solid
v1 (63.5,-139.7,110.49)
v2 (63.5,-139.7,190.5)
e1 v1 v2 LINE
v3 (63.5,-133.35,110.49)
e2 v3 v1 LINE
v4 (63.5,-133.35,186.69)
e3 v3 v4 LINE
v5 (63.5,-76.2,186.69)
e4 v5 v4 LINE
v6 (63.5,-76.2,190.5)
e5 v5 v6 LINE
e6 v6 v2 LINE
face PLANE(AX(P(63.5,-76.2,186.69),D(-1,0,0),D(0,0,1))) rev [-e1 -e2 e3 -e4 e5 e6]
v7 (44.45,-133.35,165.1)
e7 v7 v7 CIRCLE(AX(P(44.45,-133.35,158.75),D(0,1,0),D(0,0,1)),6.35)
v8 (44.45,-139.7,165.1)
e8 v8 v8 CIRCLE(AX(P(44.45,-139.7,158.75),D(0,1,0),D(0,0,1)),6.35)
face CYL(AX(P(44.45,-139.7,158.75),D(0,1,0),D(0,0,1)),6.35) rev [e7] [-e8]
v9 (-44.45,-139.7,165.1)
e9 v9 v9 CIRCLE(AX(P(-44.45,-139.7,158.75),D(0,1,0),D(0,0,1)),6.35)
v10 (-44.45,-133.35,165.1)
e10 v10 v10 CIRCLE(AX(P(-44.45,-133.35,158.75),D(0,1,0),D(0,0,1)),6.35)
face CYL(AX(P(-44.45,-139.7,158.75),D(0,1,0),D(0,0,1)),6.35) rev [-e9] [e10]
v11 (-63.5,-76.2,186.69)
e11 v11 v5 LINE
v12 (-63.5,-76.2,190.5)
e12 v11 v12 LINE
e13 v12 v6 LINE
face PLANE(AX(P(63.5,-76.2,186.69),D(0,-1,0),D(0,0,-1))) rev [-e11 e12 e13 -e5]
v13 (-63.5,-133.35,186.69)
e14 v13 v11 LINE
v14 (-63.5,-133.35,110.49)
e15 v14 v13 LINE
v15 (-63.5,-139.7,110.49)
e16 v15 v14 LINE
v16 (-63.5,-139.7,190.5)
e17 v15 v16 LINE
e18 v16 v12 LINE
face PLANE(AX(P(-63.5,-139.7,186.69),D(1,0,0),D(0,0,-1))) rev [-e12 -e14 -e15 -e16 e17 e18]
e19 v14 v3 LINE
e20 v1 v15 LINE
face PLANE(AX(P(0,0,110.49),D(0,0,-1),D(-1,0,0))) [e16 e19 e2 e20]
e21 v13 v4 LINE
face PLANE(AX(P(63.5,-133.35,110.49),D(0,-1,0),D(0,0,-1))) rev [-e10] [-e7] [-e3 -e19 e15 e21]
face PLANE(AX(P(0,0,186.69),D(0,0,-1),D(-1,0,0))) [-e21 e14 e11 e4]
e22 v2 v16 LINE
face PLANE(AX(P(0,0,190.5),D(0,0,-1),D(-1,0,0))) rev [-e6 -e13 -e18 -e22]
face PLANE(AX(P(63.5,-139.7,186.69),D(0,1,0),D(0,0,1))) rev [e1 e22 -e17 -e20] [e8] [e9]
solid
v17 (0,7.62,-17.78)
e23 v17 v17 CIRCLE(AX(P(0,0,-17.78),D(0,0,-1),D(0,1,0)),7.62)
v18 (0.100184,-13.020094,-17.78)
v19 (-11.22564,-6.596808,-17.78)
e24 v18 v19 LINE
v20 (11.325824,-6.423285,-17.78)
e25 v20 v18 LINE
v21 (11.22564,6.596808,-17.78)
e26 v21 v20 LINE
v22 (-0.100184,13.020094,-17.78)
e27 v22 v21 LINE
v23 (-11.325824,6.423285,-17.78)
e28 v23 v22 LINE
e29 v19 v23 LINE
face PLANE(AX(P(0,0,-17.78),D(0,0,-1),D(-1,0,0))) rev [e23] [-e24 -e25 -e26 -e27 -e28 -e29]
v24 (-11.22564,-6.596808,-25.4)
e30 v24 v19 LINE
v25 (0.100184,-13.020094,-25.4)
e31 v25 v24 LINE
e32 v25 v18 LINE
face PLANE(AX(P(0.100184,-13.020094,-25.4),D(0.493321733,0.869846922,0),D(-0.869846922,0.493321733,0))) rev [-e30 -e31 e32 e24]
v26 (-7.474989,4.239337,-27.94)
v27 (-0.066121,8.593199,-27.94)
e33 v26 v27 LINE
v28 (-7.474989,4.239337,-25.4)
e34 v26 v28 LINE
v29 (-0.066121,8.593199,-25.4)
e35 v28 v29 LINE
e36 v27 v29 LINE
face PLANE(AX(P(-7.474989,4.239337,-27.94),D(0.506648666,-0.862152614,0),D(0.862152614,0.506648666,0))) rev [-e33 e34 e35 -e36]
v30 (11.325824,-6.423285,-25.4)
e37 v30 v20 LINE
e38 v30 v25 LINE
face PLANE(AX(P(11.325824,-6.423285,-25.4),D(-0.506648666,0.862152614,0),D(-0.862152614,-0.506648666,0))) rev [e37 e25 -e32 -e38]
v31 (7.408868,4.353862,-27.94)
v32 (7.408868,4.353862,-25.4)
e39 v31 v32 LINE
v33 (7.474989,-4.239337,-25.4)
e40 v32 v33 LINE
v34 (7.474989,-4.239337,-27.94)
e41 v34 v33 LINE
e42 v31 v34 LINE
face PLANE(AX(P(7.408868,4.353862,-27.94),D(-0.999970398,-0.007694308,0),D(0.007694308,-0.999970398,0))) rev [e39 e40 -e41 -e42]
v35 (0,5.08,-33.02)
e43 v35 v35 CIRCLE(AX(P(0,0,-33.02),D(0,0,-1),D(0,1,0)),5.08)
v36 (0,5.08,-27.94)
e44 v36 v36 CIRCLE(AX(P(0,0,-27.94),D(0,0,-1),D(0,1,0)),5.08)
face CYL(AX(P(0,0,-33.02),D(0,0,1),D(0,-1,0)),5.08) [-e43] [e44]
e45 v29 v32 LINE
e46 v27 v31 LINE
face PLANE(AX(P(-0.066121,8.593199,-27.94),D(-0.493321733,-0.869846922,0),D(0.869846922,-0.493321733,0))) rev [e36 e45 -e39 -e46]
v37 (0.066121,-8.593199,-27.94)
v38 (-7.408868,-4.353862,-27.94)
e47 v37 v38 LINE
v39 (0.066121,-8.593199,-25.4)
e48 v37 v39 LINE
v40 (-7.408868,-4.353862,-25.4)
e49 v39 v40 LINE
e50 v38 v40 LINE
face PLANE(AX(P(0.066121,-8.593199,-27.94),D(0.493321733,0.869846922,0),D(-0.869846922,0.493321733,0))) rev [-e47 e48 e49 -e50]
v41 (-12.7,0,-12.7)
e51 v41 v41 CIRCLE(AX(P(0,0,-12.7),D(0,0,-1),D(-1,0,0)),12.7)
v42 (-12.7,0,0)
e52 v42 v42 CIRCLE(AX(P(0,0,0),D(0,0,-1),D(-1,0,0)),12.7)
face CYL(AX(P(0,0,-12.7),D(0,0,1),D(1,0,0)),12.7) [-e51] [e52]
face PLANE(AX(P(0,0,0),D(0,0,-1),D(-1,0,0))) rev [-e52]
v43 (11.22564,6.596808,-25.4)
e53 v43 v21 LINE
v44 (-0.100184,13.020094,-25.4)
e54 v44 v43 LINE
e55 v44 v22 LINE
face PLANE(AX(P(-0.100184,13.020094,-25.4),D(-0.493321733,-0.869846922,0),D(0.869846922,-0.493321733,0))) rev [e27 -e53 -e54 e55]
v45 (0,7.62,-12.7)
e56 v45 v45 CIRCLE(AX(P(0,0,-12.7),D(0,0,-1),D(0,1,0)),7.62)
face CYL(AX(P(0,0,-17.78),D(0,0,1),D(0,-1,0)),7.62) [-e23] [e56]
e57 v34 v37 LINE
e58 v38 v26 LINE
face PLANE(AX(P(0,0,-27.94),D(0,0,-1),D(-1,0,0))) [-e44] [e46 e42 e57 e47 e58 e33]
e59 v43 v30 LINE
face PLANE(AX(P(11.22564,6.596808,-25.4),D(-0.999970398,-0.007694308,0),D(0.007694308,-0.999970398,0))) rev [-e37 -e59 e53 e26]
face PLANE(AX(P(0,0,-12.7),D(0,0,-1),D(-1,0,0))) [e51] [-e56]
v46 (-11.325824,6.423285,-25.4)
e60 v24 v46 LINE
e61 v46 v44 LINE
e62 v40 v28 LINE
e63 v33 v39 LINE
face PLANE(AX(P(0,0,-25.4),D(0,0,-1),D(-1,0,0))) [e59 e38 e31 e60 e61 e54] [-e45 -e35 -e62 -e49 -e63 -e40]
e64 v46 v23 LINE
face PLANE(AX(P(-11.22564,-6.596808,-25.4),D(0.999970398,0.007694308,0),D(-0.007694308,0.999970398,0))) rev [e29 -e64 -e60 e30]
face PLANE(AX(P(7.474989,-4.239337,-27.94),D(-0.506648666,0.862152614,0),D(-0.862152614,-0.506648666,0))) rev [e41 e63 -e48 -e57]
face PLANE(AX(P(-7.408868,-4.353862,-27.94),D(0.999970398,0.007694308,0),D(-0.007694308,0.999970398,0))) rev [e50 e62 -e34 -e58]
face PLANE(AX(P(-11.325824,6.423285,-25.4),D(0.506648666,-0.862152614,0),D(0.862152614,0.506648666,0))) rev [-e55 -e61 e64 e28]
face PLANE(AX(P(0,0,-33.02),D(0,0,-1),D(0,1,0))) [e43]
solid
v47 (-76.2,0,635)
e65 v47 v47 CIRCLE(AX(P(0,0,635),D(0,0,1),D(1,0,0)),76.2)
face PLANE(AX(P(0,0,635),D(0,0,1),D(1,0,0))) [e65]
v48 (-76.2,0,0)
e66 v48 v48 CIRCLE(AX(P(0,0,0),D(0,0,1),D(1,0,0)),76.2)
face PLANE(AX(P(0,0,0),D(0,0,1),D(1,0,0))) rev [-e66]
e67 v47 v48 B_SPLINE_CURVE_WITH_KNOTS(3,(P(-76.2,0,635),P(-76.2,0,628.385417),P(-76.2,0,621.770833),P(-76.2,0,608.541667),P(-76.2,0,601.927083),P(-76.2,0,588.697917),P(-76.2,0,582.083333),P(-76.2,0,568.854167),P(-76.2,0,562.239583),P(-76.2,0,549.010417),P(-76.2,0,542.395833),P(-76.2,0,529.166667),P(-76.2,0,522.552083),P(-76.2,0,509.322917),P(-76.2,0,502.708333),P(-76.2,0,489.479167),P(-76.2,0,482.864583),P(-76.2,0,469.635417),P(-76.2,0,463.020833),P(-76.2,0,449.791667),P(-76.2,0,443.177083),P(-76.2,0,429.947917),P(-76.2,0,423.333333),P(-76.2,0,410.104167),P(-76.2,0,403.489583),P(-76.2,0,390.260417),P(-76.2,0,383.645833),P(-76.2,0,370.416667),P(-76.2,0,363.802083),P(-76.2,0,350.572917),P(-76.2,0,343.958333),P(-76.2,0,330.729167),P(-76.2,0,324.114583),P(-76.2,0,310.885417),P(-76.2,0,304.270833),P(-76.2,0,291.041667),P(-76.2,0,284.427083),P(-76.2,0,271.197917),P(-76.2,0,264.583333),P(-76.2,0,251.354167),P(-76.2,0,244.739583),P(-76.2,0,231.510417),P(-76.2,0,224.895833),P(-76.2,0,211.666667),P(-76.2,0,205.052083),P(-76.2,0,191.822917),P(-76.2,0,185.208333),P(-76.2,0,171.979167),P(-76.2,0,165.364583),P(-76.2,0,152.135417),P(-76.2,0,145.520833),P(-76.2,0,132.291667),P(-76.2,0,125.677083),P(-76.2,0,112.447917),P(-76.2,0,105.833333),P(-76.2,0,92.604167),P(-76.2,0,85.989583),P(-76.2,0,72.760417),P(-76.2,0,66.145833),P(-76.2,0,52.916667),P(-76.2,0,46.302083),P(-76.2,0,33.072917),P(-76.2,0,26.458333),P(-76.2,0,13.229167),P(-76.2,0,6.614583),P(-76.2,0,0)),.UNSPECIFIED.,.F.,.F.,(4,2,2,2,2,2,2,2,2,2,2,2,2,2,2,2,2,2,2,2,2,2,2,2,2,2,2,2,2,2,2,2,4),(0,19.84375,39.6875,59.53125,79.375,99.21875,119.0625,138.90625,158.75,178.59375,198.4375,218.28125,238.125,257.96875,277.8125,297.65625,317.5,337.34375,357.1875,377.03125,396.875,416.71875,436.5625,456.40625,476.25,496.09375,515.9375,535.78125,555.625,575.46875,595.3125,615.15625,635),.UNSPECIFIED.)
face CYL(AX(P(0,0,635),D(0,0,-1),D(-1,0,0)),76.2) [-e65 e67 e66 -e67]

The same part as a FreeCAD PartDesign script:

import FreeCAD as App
import Part
import Sketcher

V = App.Vector
Q = App.Units.Quantity

doc = App.newDocument("Part")
body = doc.addObject("PartDesign::Body", "Body")

# Sketch on XY plane
sketch1 = body.newObject("Sketcher::SketchObject", "Sketch")
sketch1.AttachmentSupport = (doc.getObject("XY_Plane"), [""])
sketch1.MapMode = "FlatFace"
sketch1.addGeometry(Part.Circle(V(0, 0, 0), V(0, 0, 1), 76), False)
sketch1.addConstraint([
    Sketcher.Constraint("Coincident", 0, 3, -1, 1),
    Sketcher.Constraint("Diameter", 0, Q("6 in")),
])
pad1 = body.newObject("PartDesign::Pad", "Pad")
pad1.Profile = sketch1
pad1.Length = Q("25 in")
body2 = doc.addObject("PartDesign::Body", "Body001")

# Sketch on XY plane
sketch2 = body2.newObject("Sketcher::SketchObject", "Sketch001")
sketch2.AttachmentSupport = (doc.getObject("XY_Plane001"), [""])
sketch2.MapMode = "FlatFace"
sketch2.addGeometry(Part.Circle(V(0, 0, 0), V(0, 0, 1), 13), False)
sketch2.addConstraint([
    Sketcher.Constraint("Coincident", 0, 3, -1, 1),
    Sketcher.Constraint("Diameter", 0, Q("1 in")),
])
pad2 = body2.newObject("PartDesign::Pad", "Pad001")
pad2.Profile = sketch2
pad2.Length = Q("0.5 in")
pad2.Reversed = True

# Sketch on XY plane
sketch3 = body2.newObject("Sketcher::SketchObject", "Sketch002")
sketch3.AttachmentSupport = (doc.getObject("XY_Plane001"), [""])
sketch3.MapMode = "FlatFace"
sketch3.AttachmentOffset = App.Placement(V(0, 0, -0.5 * 25.4), App.Rotation())
sketch3.addGeometry(Part.Circle(V(0, 0, 0), V(0, 0, 1), 8), False)
sketch3.addConstraint([
    Sketcher.Constraint("Coincident", 0, 3, -1, 1),
    Sketcher.Constraint("Diameter", 0, Q("0.6 in")),
])
pad3 = body2.newObject("PartDesign::Pad", "Pad002")
pad3.Profile = sketch3
pad3.Length = Q("0.2 in")
pad3.Reversed = True

# Sketch on XY plane
sketch4 = body2.newObject("Sketcher::SketchObject", "Sketch003")
sketch4.AttachmentSupport = (doc.getObject("XY_Plane001"), [""])
sketch4.MapMode = "FlatFace"
sketch4.AttachmentOffset = App.Placement(V(0, 0, -0.7 * 25.4), App.Rotation())
sketch4.addGeometry([
    Part.LineSegment(V(0, -13, 0), V(-11, -7, 0)),  # 0
    Part.LineSegment(V(-11, -7, 0), V(-11, 6, 0)),  # 1
    Part.LineSegment(V(-11, 6, 0), V(0, 13, 0)),  # 2
    Part.LineSegment(V(0, 13, 0), V(11, 7, 0)),  # 3
    Part.LineSegment(V(11, 7, 0), V(11, -6, 0)),  # 4
    Part.LineSegment(V(11, -6, 0), V(0, -13, 0)),  # 5
], False)
sketch4.addConstraint([
    Sketcher.Constraint("Coincident", 0, 2, 1, 1),
    Sketcher.Constraint("Coincident", 1, 2, 2, 1),
    Sketcher.Constraint("Coincident", 2, 2, 3, 1),
    Sketcher.Constraint("Coincident", 3, 2, 4, 1),
    Sketcher.Constraint("Coincident", 4, 2, 5, 1),
    Sketcher.Constraint("Coincident", 5, 2, 0, 1),
    Sketcher.Constraint("Symmetric", 0, 2, 3, 2, -1, 1),
    Sketcher.Constraint("Symmetric", 1, 2, 4, 2, -1, 1),
    Sketcher.Constraint("Symmetric", 2, 2, 5, 2, -1, 1),
    Sketcher.Constraint("Equal", 0, 1),
    Sketcher.Constraint("Equal", 1, 2),
    Sketcher.Constraint("Distance", 0, 13.020479),
    Sketcher.Constraint("DistanceX", 0, 2, -1, 1, 11.22564),
    Sketcher.Constraint("DistanceY", 0, 2, -1, 1, 6.596808),
    Sketcher.Constraint("DistanceX", 1, 2, 2, 2, 11.22564),
])
pad4 = body2.newObject("PartDesign::Pad", "Pad003")
pad4.Profile = sketch4
pad4.Length = Q("0.3 in")
pad4.Reversed = True

# Sketch on XY plane
sketch5 = body2.newObject("Sketcher::SketchObject", "Sketch004")
sketch5.AttachmentSupport = (doc.getObject("XY_Plane001"), [""])
sketch5.MapMode = "FlatFace"
sketch5.AttachmentOffset = App.Placement(V(0, 0, -1 * 25.4), App.Rotation())
sketch5.addGeometry([
    Part.LineSegment(V(-7, -4, 0), V(-7, 4, 0)),  # 0
    Part.LineSegment(V(-7, 4, 0), V(0, 9, 0)),  # 1
    Part.LineSegment(V(0, 9, 0), V(7, 4, 0)),  # 2
    Part.LineSegment(V(7, 4, 0), V(7, -4, 0)),  # 3
    Part.LineSegment(V(7, -4, 0), V(0, -9, 0)),  # 4
    Part.LineSegment(V(0, -9, 0), V(-7, -4, 0)),  # 5
], False)
sketch5.addConstraint([
    Sketcher.Constraint("Coincident", 0, 2, 1, 1),
    Sketcher.Constraint("Coincident", 1, 2, 2, 1),
    Sketcher.Constraint("Coincident", 2, 2, 3, 1),
    Sketcher.Constraint("Coincident", 3, 2, 4, 1),
    Sketcher.Constraint("Coincident", 4, 2, 5, 1),
    Sketcher.Constraint("Coincident", 5, 2, 0, 1),
    Sketcher.Constraint("Symmetric", 0, 2, 3, 2, -1, 1),
    Sketcher.Constraint("Symmetric", 1, 2, 4, 2, -1, 1),
    Sketcher.Constraint("Symmetric", 2, 2, 5, 2, -1, 1),
    Sketcher.Constraint("Equal", 0, 1),
    Sketcher.Constraint("Equal", 1, 2),
    Sketcher.Constraint("DistanceY", -1, 1, 1, 2, 8.593199),
    Sketcher.Constraint("DistanceY", 3, 2, 2, 2, 8.593199),
    Sketcher.Constraint("DistanceX", 0, 2, -1, 1, 7.474989),
    Sketcher.Constraint("DistanceX", 1, 2, -1, 1, 0.066121),
])
pad5 = body2.newObject("PartDesign::Pad", "Pad004")
pad5.Profile = sketch5
pad5.Length = Q("0.1 in")
pad5.Reversed = True

# Sketch on XY plane
sketch6 = body2.newObject("Sketcher::SketchObject", "Sketch005")
sketch6.AttachmentSupport = (doc.getObject("XY_Plane001"), [""])
sketch6.MapMode = "FlatFace"
sketch6.AttachmentOffset = App.Placement(V(0, 0, -1.1 * 25.4), App.Rotation())
sketch6.addGeometry(Part.Circle(V(0, 0, 0), V(0, 0, 1), 5), False)
sketch6.addConstraint([
    Sketcher.Constraint("Coincident", 0, 3, -1, 1),
    Sketcher.Constraint("Diameter", 0, Q("0.4 in")),
])
pad6 = body2.newObject("PartDesign::Pad", "Pad005")
pad6.Profile = sketch6
pad6.Length = Q("0.2 in")
pad6.Reversed = True
body3 = doc.addObject("PartDesign::Body", "Body002")

# Sketch on XY plane
sketch7 = body3.newObject("Sketcher::SketchObject", "Sketch006")
sketch7.AttachmentSupport = (doc.getObject("XY_Plane002"), [""])
sketch7.MapMode = "FlatFace"
sketch7.AttachmentOffset = App.Placement(V(0, 0, 7.5 * 25.4), App.Rotation())
sketch7.addGeometry([
    Part.LineSegment(V(64, -76, 0), V(64, -140, 0)),
    Part.LineSegment(V(64, -140, 0), V(-64, -140, 0)),
    Part.LineSegment(V(-64, -140, 0), V(-64, -76, 0)),
    Part.LineSegment(V(-64, -76, 0), V(64, -76, 0)),
], False)
sketch7.addConstraint([
    Sketcher.Constraint("Coincident", 0, 2, 1, 1),
    Sketcher.Constraint("Coincident", 1, 2, 2, 1),
    Sketcher.Constraint("Coincident", 2, 2, 3, 1),
    Sketcher.Constraint("Coincident", 3, 2, 0, 1),
    Sketcher.Constraint("Vertical", 0),
    Sketcher.Constraint("Horizontal", 1),
    Sketcher.Constraint("Vertical", 2),
    Sketcher.Constraint("Horizontal", 3),
    Sketcher.Constraint("DistanceX", 1, 2, 1, 1, Q("5 in")),
    Sketcher.Constraint("DistanceY", 0, 2, 0, 1, Q("2.5 in")),
    Sketcher.Constraint("DistanceY", 2, 2, -1, 1, Q("3 in")),
    Sketcher.Constraint("DistanceX", -1, 1, 0, 2, Q("2.5 in")),
])
pad7 = body3.newObject("PartDesign::Pad", "Pad006")
pad7.Profile = sketch7
pad7.Length = Q("0.15 in")
pad7.Reversed = True

# Sketch on XY plane
sketch8 = body3.newObject("Sketcher::SketchObject", "Sketch007")
sketch8.AttachmentSupport = (doc.getObject("XY_Plane002"), [""])
sketch8.MapMode = "FlatFace"
sketch8.AttachmentOffset = App.Placement(V(0, 0, 7.35 * 25.4), App.Rotation())
sketch8.addGeometry([
    Part.LineSegment(V(64, -133, 0), V(64, -140, 0)),
    Part.LineSegment(V(64, -140, 0), V(-64, -140, 0)),
    Part.LineSegment(V(-64, -140, 0), V(-64, -133, 0)),
    Part.LineSegment(V(-64, -133, 0), V(64, -133, 0)),
], False)
sketch8.addConstraint([
    Sketcher.Constraint("Coincident", 0, 2, 1, 1),
    Sketcher.Constraint("Coincident", 1, 2, 2, 1),
    Sketcher.Constraint("Coincident", 2, 2, 3, 1),
    Sketcher.Constraint("Coincident", 3, 2, 0, 1),
    Sketcher.Constraint("Vertical", 0),
    Sketcher.Constraint("Horizontal", 1),
    Sketcher.Constraint("Vertical", 2),
    Sketcher.Constraint("Horizontal", 3),
    Sketcher.Constraint("DistanceX", 1, 2, 1, 1, Q("5 in")),
    Sketcher.Constraint("DistanceY", 0, 2, 0, 1, Q("0.25 in")),
    Sketcher.Constraint("DistanceX", -1, 1, 0, 2, Q("2.5 in")),
    Sketcher.Constraint("DistanceY", 0, 2, -1, 1, Q("5.5 in")),
])
pad8 = body3.newObject("PartDesign::Pad", "Pad007")
pad8.Profile = sketch8
pad8.Length = Q("3 in")
pad8.Reversed = True

# Sketch on XZ plane
sketch9 = body3.newObject("Sketcher::SketchObject", "Sketch008")
sketch9.AttachmentSupport = (doc.getObject("XZ_Plane002"), [""])
sketch9.MapMode = "FlatFace"
sketch9.AttachmentOffset = App.Placement(V(0, 0, 5.25 * 25.4), App.Rotation())
sketch9.addGeometry([
    Part.Circle(V(44, 159, 0), V(0, 0, 1), 6),
    Part.Circle(V(-44, 159, 0), V(0, 0, 1), 6),
], False)
sketch9.addConstraint([
    Sketcher.Constraint("Equal", 0, 1),
    Sketcher.Constraint("Symmetric", 0, 3, 1, 3, -2),
    Sketcher.Constraint("Diameter", 0, Q("0.5 in")),
    Sketcher.Constraint("DistanceX", 1, 3, 0, 3, Q("3.5 in")),
    Sketcher.Constraint("DistanceY", -1, 1, 0, 3, Q("6.25 in")),
])
pocket1 = body3.newObject("PartDesign::Pocket", "Pocket")
pocket1.Profile = sketch9
pocket1.Type = "ThroughAll"
pocket1.Reversed = True

doc.recompute()
